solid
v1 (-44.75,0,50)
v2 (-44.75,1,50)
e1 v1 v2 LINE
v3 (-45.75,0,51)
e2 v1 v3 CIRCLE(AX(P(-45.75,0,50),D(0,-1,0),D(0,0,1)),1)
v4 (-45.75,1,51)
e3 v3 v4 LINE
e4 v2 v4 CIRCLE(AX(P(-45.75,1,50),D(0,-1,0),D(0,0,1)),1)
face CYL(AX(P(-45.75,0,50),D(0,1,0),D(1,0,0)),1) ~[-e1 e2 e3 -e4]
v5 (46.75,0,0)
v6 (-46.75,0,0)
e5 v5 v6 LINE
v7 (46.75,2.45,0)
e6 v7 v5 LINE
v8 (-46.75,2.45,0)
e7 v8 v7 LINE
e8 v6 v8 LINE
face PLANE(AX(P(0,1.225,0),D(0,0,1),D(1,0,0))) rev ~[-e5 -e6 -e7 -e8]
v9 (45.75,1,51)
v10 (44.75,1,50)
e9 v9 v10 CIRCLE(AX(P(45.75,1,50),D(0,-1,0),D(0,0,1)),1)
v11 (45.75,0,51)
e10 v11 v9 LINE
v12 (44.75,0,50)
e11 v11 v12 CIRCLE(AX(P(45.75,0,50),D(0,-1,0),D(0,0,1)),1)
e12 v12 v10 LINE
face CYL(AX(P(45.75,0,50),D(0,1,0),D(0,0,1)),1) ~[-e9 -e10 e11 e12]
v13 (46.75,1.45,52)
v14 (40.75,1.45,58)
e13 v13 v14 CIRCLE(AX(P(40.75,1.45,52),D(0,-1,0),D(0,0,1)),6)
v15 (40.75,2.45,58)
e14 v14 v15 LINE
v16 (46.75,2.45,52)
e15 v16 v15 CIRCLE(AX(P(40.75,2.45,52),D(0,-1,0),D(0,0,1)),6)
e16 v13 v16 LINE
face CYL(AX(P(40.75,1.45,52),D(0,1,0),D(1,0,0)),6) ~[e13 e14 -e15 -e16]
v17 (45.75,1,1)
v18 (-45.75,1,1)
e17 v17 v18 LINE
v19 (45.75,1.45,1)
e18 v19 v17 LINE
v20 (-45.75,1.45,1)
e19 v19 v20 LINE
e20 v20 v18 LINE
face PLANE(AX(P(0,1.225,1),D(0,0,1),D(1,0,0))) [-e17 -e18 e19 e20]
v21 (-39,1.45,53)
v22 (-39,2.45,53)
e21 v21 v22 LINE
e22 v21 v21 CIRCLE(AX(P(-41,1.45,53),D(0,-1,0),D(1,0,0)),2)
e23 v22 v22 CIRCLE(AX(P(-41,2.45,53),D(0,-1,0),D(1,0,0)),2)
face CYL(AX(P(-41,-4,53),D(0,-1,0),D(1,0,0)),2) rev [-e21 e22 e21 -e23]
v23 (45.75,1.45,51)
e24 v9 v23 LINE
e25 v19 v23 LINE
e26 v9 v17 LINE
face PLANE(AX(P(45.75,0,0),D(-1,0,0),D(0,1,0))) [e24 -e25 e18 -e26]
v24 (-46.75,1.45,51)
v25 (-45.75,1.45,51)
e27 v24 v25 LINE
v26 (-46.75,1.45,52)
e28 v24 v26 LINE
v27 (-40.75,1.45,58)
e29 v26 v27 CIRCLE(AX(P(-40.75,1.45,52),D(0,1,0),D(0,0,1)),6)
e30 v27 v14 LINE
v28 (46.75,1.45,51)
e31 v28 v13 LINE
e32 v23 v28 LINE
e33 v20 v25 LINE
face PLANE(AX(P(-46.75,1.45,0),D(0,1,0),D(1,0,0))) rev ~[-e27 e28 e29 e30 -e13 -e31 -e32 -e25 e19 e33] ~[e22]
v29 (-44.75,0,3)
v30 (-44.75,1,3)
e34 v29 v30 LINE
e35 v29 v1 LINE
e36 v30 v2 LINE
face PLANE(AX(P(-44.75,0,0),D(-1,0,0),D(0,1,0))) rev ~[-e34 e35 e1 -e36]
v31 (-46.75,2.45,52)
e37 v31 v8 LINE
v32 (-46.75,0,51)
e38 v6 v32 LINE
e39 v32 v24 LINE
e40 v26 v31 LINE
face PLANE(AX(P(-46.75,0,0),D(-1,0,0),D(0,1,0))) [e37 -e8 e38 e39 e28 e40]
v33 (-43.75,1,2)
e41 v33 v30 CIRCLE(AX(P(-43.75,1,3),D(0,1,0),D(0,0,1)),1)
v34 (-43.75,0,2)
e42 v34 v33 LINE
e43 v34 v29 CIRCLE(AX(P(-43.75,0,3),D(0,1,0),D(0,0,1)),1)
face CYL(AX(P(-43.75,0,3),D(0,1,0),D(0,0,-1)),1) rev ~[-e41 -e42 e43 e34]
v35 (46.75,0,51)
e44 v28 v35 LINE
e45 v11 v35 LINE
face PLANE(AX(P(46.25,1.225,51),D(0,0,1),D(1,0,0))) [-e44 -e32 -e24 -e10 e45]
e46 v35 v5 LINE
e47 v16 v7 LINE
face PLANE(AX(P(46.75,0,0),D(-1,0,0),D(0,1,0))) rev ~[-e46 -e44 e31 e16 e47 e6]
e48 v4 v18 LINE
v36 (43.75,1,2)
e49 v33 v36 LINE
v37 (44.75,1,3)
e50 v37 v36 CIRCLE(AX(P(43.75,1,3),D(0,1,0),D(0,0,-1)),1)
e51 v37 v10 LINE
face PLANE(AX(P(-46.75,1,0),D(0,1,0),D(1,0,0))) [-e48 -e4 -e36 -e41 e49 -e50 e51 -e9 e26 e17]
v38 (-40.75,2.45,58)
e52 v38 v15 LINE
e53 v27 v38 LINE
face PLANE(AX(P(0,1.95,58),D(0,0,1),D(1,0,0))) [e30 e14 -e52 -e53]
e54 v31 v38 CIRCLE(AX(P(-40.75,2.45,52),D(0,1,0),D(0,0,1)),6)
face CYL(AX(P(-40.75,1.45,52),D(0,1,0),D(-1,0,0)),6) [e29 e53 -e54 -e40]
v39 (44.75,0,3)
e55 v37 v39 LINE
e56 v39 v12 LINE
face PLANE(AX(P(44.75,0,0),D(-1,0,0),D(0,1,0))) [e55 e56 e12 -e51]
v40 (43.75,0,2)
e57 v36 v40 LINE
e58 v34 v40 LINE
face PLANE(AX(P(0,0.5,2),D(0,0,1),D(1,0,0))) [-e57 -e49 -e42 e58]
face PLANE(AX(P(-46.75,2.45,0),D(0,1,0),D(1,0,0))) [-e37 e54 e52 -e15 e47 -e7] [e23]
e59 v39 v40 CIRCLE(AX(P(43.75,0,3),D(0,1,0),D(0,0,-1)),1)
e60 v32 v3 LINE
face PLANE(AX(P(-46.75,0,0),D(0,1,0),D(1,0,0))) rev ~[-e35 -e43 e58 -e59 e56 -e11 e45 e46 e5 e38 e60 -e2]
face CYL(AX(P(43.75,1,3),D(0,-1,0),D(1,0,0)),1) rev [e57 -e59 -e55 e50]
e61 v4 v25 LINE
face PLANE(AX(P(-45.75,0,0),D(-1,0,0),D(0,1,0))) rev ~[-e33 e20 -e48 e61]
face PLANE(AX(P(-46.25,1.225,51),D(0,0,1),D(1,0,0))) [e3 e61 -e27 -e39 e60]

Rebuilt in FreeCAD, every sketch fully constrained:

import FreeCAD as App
import Part
import Sketcher

V = App.Vector
Q = App.Units.Quantity


def edges_at(feature, points):
    """Names of the edges that pass closest to the given points."""
    edges = feature.Shape.Edges
    near = lambda p: min(range(len(edges)), key=lambda i: edges[i].distToShape(Part.Vertex(*p))[0])
    return sorted({f"Edge{near(p) + 1}" for p in points})

doc = App.newDocument("Part")
body = doc.addObject("PartDesign::Body", "Body")

sketch1 = body.newObject("Sketcher::SketchObject", "Sketch")
sketch1.AttachmentSupport = (doc.getObject("XZ_Plane"), [""])
sketch1.MapMode = "FlatFace"
sketch1.AttachmentOffset = App.Placement(V(0, 0, 4), App.Rotation())
sketch1.addGeometry(Part.Circle(V(-41, 53, 0), V(0, 0, 1), 2), False)
sketch1.addConstraint([
    Sketcher.Constraint("Diameter", 0, Q("4 mm")),
    Sketcher.Constraint("DistanceX", 0, 3, -1, 1, Q("41 mm")),
    Sketcher.Constraint("DistanceY", -1, 1, 0, 3, Q("53 mm")),
])
pad1 = body.newObject("PartDesign::Pad", "Pad")
pad1.Profile = sketch1
pad1.Length = 10
pad1.Reversed = True
body2 = doc.addObject("PartDesign::Body", "Body001")

sketch2 = body2.newObject("Sketcher::SketchObject", "Sketch001")
sketch2.AttachmentSupport = (doc.getObject("XY_Plane001"), [""])
sketch2.MapMode = "FlatFace"
sketch2.addGeometry([
    Part.LineSegment(V(-46.8, 2.5, 0), V(-46.8, 1.4, 0)),
    Part.LineSegment(V(-46.8, 1.4, 0), V(46.8, 1.4, 0)),
    Part.LineSegment(V(46.8, 1.4, 0), V(46.8, 2.5, 0)),
    Part.LineSegment(V(46.8, 2.5, 0), V(-46.8, 2.5, 0)),
], False)
sketch2.addConstraint([
    Sketcher.Constraint("Coincident", 0, 2, 1, 1),
    Sketcher.Constraint("Coincident", 1, 2, 2, 1),
    Sketcher.Constraint("Coincident", 2, 2, 3, 1),
    Sketcher.Constraint("Coincident", 3, 2, 0, 1),
    Sketcher.Constraint("Vertical", 0),
    Sketcher.Constraint("Horizontal", 1),
    Sketcher.Constraint("Vertical", 2),
    Sketcher.Constraint("Horizontal", 3),
    Sketcher.Constraint("DistanceY", 0, 2, 0, 1, Q("1 mm")),
    Sketcher.Constraint("DistanceX", 1, 1, 1, 2, Q("93.5 mm")),
    Sketcher.Constraint("DistanceX", 0, 2, -1, 1, Q("46.75 mm")),
    Sketcher.Constraint("DistanceY", -1, 1, 0, 2, Q("1.45 mm")),
])
pad2 = body2.newObject("PartDesign::Pad", "Pad001")
pad2.Profile = sketch2
pad2.Length = 58
doc.recompute()

fillet = body2.newObject("PartDesign::Fillet", "Fillet")
fillet.Base = (pad2, edges_at(pad2, [(-46.75, 1.95, 58), (46.75, 1.95, 58)]))
fillet.Radius = 6
doc.recompute()

boolean = body2.newObject("PartDesign::Boolean", "Boolean")
boolean.Type = "Cut"
boolean.addObjects([body])
body3 = doc.addObject("PartDesign::Body", "Body002")

sketch3 = body3.newObject("Sketcher::SketchObject", "Sketch002")
sketch3.AttachmentSupport = (doc.getObject("XY_Plane002"), [""])
sketch3.MapMode = "FlatFace"
sketch3.addGeometry([
    Part.LineSegment(V(-46.8, 2.5, 0), V(-46.8, 0, 0)),
    Part.LineSegment(V(-46.8, 0, 0), V(-45.8, 0, 0)),
    Part.LineSegment(V(-45.8, 0, 0), V(-45.8, 2.5, 0)),
    Part.LineSegment(V(-45.8, 2.5, 0), V(-46.8, 2.5, 0)),
], False)
sketch3.addConstraint([
    Sketcher.Constraint("Coincident", 0, 2, 1, 1),
    Sketcher.Constraint("Coincident", 1, 2, 2, 1),
    Sketcher.Constraint("Coincident", 2, 2, 3, 1),
    Sketcher.Constraint("Coincident", 3, 2, 0, 1),
    Sketcher.Constraint("Vertical", 0),
    Sketcher.Constraint("Horizontal", 1),
    Sketcher.Constraint("Vertical", 2),
    Sketcher.Constraint("Horizontal", 3),
    Sketcher.Constraint("PointOnObject", 0, 2, -1),
    Sketcher.Constraint("DistanceX", 1, 1, 1, 2, Q("1 mm")),
    Sketcher.Constraint("DistanceY", 0, 2, 0, 1, Q("2.45 mm")),
    Sketcher.Constraint("DistanceX", 0, 2, -1, 1, Q("46.75 mm")),
])
pad3 = body3.newObject("PartDesign::Pad", "Pad002")
pad3.Profile = sketch3
pad3.Length = 51
body4 = doc.addObject("PartDesign::Body", "Body003")

sketch4 = body4.newObject("Sketcher::SketchObject", "Sketch003")
sketch4.AttachmentSupport = (doc.getObject("XY_Plane003"), [""])
sketch4.MapMode = "FlatFace"
sketch4.addGeometry([
    Part.LineSegment(V(45.8, 2.5, 0), V(45.8, 0, 0)),
    Part.LineSegment(V(45.8, 0, 0), V(46.8, 0, 0)),
    Part.LineSegment(V(46.8, 0, 0), V(46.8, 2.5, 0)),
    Part.LineSegment(V(46.8, 2.5, 0), V(45.8, 2.5, 0)),
], False)
sketch4.addConstraint([
    Sketcher.Constraint("Coincident", 0, 2, 1, 1),
    Sketcher.Constraint("Coincident", 1, 2, 2, 1),
    Sketcher.Constraint("Coincident", 2, 2, 3, 1),
    Sketcher.Constraint("Coincident", 3, 2, 0, 1),
    Sketcher.Constraint("Vertical", 0),
    Sketcher.Constraint("Horizontal", 1),
    Sketcher.Constraint("Vertical", 2),
    Sketcher.Constraint("Horizontal", 3),
    Sketcher.Constraint("PointOnObject", 0, 2, -1),
    Sketcher.Constraint("DistanceX", 1, 1, 1, 2, Q("1 mm")),
    Sketcher.Constraint("DistanceY", 0, 2, 0, 1, Q("2.45 mm")),
    Sketcher.Constraint("DistanceX", -1, 1, 0, 2, Q("45.75 mm")),
])
pad4 = body4.newObject("PartDesign::Pad", "Pad003")
pad4.Profile = sketch4
pad4.Length = 51
body5 = doc.addObject("PartDesign::Body", "Body004")

sketch5 = body5.newObject("Sketcher::SketchObject", "Sketch004")
sketch5.AttachmentSupport = (doc.getObject("XY_Plane004"), [""])
sketch5.MapMode = "FlatFace"
sketch5.addGeometry([
    Part.LineSegment(V(-46.8, 1, 0), V(-46.8, 0, 0)),
    Part.LineSegment(V(-46.8, 0, 0), V(46.8, 0, 0)),
    Part.LineSegment(V(46.8, 0, 0), V(46.8, 1, 0)),
    Part.LineSegment(V(46.8, 1, 0), V(-46.8, 1, 0)),
], False)
sketch5.addConstraint([
    Sketcher.Constraint("Coincident", 0, 2, 1, 1),
    Sketcher.Constraint("Coincident", 1, 2, 2, 1),
    Sketcher.Constraint("Coincident", 2, 2, 3, 1),
    Sketcher.Constraint("Coincident", 3, 2, 0, 1),
    Sketcher.Constraint("Vertical", 0),
    Sketcher.Constraint("Horizontal", 1),
    Sketcher.Constraint("Vertical", 2),
    Sketcher.Constraint("Horizontal", 3),
    Sketcher.Constraint("Symmetric", 0, 2, 1, 2, -1, 1),
    Sketcher.Constraint("DistanceY", 0, 2, 0, 1, Q("1 mm")),
    Sketcher.Constraint("DistanceX", 1, 1, 1, 2, Q("93.5 mm")),
])
pad5 = body5.newObject("PartDesign::Pad", "Pad004")
pad5.Profile = sketch5
pad5.Length = 2
body6 = doc.addObject("PartDesign::Body", "Body005")

sketch6 = body6.newObject("Sketcher::SketchObject", "Sketch005")
sketch6.AttachmentSupport = (doc.getObject("XY_Plane005"), [""])
sketch6.MapMode = "FlatFace"
sketch6.addGeometry([
    Part.LineSegment(V(44.8, 1, 0), V(44.8, 0, 0)),
    Part.LineSegment(V(44.8, 0, 0), V(46.8, 0, 0)),
    Part.LineSegment(V(46.8, 0, 0), V(46.8, 1, 0)),
    Part.LineSegment(V(46.8, 1, 0), V(44.8, 1, 0)),
], False)
sketch6.addConstraint([
    Sketcher.Constraint("Coincident", 0, 2, 1, 1),
    Sketcher.Constraint("Coincident", 1, 2, 2, 1),
    Sketcher.Constraint("Coincident", 2, 2, 3, 1),
    Sketcher.Constraint("Coincident", 3, 2, 0, 1),
    Sketcher.Constraint("Vertical", 0),
    Sketcher.Constraint("Horizontal", 1),
    Sketcher.Constraint("Vertical", 2),
    Sketcher.Constraint("Horizontal", 3),
    Sketcher.Constraint("PointOnObject", 0, 2, -1),
    Sketcher.Constraint("DistanceX", 1, 1, 1, 2, Q("2 mm")),
    Sketcher.Constraint("DistanceY", 0, 2, 0, 1, Q("1 mm")),
    Sketcher.Constraint("DistanceX", -1, 1, 0, 2, Q("44.75 mm")),
])
pad6 = body6.newObject("PartDesign::Pad", "Pad005")
pad6.Profile = sketch6
pad6.Length = 51
body7 = doc.addObject("PartDesign::Body", "Body006")

sketch7 = body7.newObject("Sketcher::SketchObject", "Sketch006")
sketch7.AttachmentSupport = (doc.getObject("XY_Plane006"), [""])
sketch7.MapMode = "FlatFace"
sketch7.addGeometry([
    Part.LineSegment(V(-46.8, 1, 0), V(-46.8, 0, 0)),
    Part.LineSegment(V(-46.8, 0, 0), V(-44.8, 0, 0)),
    Part.LineSegment(V(-44.8, 0, 0), V(-44.8, 1, 0)),
    Part.LineSegment(V(-44.8, 1, 0), V(-46.8, 1, 0)),
], False)
sketch7.addConstraint([
    Sketcher.Constraint("Coincident", 0, 2, 1, 1),
    Sketcher.Constraint("Coincident", 1, 2, 2, 1),
    Sketcher.Constraint("Coincident", 2, 2, 3, 1),
    Sketcher.Constraint("Coincident", 3, 2, 0, 1),
    Sketcher.Constraint("Vertical", 0),
    Sketcher.Constraint("Horizontal", 1),
    Sketcher.Constraint("Vertical", 2),
    Sketcher.Constraint("Horizontal", 3),
    Sketcher.Constraint("PointOnObject", 0, 2, -1),
    Sketcher.Constraint("DistanceX", 1, 1, 1, 2, Q("2 mm")),
    Sketcher.Constraint("DistanceY", 0, 2, 0, 1, Q("1 mm")),
    Sketcher.Constraint("DistanceX", 0, 2, -1, 1, Q("46.75 mm")),
])
pad7 = body7.newObject("PartDesign::Pad", "Pad006")
pad7.Profile = sketch7
pad7.Length = 51
doc.recompute()

boolean2 = body7.newObject("PartDesign::Boolean", "Boolean001")
boolean2.Type = "Fuse"
boolean2.addObjects([body5])
doc.recompute()

boolean3 = body7.newObject("PartDesign::Boolean", "Boolean002")
boolean3.Type = "Fuse"
boolean3.addObjects([body6])
doc.recompute()

fillet2 = body7.newObject("PartDesign::Fillet", "Fillet001")
fillet2.Base = (boolean3, edges_at(boolean3, [
    (-44.75, 0.5, 51),
    (44.75, 0.5, 2),
    (-44.75, 0.5, 2),
    (44.75, 0.5, 51),
]))
fillet2.Radius = 1
body8 = doc.addObject("PartDesign::Body", "Body007")

sketch8 = body8.newObject("Sketcher::SketchObject", "Sketch007")
sketch8.AttachmentSupport = (doc.getObject("XY_Plane007"), [""])
sketch8.MapMode = "FlatFace"
sketch8.addGeometry([
    Part.LineSegment(V(-46.8, 2.5, 0), V(-46.8, 0, 0)),
    Part.LineSegment(V(-46.8, 0, 0), V(46.8, 0, 0)),
    Part.LineSegment(V(46.8, 0, 0), V(46.8, 2.5, 0)),
    Part.LineSegment(V(46.8, 2.5, 0), V(-46.8, 2.5, 0)),
], False)
sketch8.addConstraint([
    Sketcher.Constraint("Coincident", 0, 2, 1, 1),
    Sketcher.Constraint("Coincident", 1, 2, 2, 1),
    Sketcher.Constraint("Coincident", 2, 2, 3, 1),
    Sketcher.Constraint("Coincident", 3, 2, 0, 1),
    Sketcher.Constraint("Vertical", 0),
    Sketcher.Constraint("Horizontal", 1),
    Sketcher.Constraint("Vertical", 2),
    Sketcher.Constraint("Horizontal", 3),
    Sketcher.Constraint("Symmetric", 0, 2, 1, 2, -1, 1),
    Sketcher.Constraint("DistanceX", 1, 1, 1, 2, Q("93.5 mm")),
    Sketcher.Constraint("DistanceY", 0, 2, 0, 1, Q("2.45 mm")),
])
pad8 = body8.newObject("PartDesign::Pad", "Pad007")
pad8.Profile = sketch8
pad8.Length = 1
doc.recompute()

boolean4 = body8.newObject("PartDesign::Boolean", "Boolean003")
boolean4.Type = "Fuse"
boolean4.addObjects([body2])
doc.recompute()

boolean5 = body8.newObject("PartDesign::Boolean", "Boolean004")
boolean5.Type = "Fuse"
boolean5.addObjects([body3])
doc.recompute()

boolean6 = body8.newObject("PartDesign::Boolean", "Boolean005")
boolean6.Type = "Fuse"
boolean6.addObjects([body4])
doc.recompute()

boolean7 = body8.newObject("PartDesign::Boolean", "Boolean006")
boolean7.Type = "Fuse"
boolean7.addObjects([body7])

doc.recompute()
